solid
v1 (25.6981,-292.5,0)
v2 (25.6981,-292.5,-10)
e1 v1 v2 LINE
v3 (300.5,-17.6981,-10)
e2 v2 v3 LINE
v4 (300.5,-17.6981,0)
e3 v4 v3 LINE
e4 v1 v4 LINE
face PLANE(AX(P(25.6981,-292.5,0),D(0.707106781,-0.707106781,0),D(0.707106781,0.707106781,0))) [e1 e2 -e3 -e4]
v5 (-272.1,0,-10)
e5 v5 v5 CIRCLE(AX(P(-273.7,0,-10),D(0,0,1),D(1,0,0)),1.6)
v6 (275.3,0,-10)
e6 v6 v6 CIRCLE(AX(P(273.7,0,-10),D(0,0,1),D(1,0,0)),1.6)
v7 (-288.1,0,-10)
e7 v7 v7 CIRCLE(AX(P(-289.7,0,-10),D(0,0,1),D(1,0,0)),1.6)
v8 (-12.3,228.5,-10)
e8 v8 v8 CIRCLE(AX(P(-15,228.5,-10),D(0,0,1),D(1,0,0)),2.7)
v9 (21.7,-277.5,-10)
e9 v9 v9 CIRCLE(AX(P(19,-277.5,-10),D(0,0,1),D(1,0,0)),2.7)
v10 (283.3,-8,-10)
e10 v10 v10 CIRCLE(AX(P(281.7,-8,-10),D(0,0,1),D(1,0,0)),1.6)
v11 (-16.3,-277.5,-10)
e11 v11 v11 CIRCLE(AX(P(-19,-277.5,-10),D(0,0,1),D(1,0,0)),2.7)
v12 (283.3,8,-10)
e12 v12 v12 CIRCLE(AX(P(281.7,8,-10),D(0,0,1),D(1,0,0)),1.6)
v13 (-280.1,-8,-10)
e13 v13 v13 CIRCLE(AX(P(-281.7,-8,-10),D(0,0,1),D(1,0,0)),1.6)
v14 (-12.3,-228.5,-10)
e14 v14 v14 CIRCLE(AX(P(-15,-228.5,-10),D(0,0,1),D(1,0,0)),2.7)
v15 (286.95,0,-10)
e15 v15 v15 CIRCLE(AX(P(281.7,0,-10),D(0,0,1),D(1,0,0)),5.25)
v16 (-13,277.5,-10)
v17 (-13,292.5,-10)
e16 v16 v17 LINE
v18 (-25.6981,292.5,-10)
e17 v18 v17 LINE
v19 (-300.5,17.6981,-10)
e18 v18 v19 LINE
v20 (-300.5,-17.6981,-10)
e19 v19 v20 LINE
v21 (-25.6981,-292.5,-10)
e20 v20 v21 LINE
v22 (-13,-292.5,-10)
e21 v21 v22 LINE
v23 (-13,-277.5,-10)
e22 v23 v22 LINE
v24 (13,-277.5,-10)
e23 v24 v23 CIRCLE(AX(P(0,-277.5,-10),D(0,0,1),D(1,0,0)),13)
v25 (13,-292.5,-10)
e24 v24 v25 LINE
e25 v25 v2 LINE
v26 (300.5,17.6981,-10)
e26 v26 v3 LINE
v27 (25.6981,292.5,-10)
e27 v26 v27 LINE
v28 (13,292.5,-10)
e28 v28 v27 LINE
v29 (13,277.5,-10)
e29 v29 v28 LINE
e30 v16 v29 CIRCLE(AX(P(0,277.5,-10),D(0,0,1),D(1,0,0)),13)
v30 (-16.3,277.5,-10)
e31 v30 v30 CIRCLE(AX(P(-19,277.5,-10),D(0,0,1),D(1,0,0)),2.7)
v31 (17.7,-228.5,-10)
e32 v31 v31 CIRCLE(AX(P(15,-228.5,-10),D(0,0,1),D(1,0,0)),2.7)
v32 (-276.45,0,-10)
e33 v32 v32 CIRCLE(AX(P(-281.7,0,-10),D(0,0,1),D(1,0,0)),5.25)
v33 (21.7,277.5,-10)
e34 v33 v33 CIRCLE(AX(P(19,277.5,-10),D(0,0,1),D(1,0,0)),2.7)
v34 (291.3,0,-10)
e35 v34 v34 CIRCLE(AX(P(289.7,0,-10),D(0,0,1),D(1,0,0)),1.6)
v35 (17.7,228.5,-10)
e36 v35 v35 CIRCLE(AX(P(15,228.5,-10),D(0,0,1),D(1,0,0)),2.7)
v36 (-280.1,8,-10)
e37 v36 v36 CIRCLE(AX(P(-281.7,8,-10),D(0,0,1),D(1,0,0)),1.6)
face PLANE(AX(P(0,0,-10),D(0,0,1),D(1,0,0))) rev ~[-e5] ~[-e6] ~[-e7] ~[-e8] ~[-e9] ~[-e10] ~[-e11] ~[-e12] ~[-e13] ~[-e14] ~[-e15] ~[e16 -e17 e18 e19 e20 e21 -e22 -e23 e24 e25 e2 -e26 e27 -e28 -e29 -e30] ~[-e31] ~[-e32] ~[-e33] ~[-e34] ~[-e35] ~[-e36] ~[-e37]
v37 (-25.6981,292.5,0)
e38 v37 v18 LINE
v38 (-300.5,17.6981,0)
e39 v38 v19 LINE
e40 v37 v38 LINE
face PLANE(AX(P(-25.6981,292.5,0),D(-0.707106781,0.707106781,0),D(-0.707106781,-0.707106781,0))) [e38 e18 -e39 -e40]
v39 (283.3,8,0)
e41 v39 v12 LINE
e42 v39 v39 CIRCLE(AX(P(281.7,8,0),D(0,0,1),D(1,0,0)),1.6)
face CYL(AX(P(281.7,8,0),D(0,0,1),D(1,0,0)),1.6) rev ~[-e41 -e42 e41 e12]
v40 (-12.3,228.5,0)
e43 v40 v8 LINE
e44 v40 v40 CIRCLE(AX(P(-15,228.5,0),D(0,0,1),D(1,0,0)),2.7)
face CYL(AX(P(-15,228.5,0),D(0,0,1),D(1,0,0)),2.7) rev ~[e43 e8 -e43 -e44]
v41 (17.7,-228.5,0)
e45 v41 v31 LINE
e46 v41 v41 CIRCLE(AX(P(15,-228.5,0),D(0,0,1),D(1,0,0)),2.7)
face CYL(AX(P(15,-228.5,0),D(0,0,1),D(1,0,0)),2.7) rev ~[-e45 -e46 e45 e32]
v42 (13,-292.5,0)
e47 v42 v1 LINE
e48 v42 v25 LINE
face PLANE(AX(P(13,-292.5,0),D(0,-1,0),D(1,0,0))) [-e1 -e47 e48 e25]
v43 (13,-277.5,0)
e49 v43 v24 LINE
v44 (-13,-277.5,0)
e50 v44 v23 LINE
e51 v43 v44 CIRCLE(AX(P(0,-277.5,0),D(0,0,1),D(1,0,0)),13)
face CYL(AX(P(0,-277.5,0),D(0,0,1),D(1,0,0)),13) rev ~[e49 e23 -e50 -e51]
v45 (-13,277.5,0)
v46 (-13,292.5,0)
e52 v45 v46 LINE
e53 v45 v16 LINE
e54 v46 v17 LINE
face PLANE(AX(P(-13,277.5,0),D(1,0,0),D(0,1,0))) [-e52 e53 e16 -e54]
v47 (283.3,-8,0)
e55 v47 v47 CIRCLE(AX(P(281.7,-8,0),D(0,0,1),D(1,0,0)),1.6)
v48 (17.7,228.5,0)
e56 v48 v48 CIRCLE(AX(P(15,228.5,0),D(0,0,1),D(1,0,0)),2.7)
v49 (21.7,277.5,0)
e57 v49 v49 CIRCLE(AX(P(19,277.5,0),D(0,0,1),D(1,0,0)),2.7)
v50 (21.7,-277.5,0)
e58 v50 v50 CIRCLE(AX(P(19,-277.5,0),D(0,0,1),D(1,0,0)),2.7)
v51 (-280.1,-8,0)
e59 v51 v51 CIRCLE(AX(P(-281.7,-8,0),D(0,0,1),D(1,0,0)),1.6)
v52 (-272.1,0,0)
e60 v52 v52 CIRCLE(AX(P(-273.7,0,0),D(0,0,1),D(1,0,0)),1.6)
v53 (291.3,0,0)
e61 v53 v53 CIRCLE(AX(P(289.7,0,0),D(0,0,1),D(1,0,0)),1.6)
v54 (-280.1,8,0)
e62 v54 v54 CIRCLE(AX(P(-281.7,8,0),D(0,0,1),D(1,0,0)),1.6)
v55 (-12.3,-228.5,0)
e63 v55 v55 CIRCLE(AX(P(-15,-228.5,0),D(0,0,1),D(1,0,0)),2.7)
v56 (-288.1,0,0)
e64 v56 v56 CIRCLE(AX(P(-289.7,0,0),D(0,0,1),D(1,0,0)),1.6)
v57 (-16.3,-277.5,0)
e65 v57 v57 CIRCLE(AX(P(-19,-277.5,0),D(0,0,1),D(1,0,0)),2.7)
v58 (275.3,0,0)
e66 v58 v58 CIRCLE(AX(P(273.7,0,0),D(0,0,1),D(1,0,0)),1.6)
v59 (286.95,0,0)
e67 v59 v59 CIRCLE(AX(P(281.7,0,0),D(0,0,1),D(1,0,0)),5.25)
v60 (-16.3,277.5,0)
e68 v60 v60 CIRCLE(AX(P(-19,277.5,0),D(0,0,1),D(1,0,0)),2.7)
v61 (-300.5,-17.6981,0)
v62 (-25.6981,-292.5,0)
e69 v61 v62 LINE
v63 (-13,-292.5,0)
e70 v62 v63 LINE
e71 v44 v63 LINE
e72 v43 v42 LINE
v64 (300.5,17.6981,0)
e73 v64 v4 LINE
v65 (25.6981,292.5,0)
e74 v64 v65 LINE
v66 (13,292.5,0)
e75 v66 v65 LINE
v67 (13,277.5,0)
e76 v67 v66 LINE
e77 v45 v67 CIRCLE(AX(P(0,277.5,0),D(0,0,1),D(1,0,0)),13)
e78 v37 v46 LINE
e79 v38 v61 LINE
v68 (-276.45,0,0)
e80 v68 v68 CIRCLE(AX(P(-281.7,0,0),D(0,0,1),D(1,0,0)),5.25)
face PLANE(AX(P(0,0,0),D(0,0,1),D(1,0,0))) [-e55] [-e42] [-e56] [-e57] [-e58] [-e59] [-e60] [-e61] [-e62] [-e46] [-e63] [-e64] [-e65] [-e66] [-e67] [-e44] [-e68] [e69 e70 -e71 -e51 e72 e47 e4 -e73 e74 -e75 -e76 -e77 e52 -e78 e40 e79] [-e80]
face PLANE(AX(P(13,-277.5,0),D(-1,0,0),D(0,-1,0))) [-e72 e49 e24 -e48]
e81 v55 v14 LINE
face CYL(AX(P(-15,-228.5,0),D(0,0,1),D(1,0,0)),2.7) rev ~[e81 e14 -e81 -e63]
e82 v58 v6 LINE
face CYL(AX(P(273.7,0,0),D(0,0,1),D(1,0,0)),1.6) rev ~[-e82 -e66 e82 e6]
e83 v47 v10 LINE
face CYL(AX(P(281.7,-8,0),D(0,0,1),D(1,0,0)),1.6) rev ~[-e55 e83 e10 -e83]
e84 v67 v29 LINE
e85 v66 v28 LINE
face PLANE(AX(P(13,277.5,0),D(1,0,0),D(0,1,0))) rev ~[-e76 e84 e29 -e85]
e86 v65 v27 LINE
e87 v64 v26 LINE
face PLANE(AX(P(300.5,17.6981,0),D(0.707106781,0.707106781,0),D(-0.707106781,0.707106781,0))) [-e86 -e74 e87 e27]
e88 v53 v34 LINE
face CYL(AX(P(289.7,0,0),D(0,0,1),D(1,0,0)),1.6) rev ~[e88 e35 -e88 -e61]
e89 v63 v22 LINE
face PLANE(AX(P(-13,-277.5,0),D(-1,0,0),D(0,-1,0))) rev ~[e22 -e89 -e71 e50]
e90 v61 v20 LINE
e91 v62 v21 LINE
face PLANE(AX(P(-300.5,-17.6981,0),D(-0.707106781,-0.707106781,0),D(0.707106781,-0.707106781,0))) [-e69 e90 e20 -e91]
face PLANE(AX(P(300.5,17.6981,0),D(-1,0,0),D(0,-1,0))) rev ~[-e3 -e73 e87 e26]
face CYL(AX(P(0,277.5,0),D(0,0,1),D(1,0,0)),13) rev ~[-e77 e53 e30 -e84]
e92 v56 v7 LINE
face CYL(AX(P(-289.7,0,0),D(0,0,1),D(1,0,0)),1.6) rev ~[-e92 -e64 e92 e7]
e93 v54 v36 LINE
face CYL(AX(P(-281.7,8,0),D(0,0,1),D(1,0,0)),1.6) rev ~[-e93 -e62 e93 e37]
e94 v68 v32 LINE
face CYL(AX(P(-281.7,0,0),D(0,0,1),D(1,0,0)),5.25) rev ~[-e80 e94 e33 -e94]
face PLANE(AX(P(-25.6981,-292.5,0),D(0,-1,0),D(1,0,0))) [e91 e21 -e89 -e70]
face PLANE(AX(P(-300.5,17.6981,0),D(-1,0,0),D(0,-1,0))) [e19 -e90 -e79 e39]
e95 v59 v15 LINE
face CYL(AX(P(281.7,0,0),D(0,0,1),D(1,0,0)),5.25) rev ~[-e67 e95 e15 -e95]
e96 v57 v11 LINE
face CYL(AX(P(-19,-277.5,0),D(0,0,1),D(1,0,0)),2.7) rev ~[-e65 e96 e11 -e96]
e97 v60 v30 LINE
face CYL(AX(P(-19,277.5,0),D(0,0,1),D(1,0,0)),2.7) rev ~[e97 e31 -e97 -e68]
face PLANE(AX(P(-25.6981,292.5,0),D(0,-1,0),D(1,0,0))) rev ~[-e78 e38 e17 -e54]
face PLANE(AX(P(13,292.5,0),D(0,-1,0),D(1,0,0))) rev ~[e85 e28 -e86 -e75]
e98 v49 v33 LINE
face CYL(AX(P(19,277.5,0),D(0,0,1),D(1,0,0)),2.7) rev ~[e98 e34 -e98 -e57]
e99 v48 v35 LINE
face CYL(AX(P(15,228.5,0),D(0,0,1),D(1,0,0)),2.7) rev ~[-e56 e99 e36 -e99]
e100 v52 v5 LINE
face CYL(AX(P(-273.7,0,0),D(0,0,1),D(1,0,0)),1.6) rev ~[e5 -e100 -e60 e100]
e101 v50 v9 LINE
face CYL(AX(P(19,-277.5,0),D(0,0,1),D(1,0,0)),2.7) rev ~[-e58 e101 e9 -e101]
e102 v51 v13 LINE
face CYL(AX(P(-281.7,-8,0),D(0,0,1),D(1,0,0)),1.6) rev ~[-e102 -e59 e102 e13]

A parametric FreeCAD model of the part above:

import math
import FreeCAD as App
import Part
import Sketcher

V = App.Vector

doc = App.newDocument("Part")
params = doc.addObject("Spreadsheet::Sheet", "Params")
for row, (alias, value) in enumerate([
    ("sketch1_radius", "13 mm"),
    ("sketch1_diameter", "5.4 mm"),
    ("sketch1_diameter2", "3.2 mm"),
    ("sketch1_diameter3", "10.5 mm"),
    ("sketch1_height", "15 mm"),
    ("pad1_length", "10 mm"),
], start=1):
    params.set(f"A{row}", alias)
    params.set(f"B{row}", "=" + value)
    params.setAlias(f"B{row}", alias)

body = doc.addObject("PartDesign::Body", "Body")

# Sketch on XY plane
sketch1 = doc.addObject("Sketcher::SketchObject", "Sketch")
body.addObject(sketch1)
sketch1.AttachmentSupport = (doc.XY_Plane, [""])
sketch1.MapMode = "FlatFace"
sketch1.addGeometry([
    Part.LineSegment(V(13, 292.5, 0), V(13, 277.5, 0)),  # 0
    Part.ArcOfCircle(Part.Circle(V(0, 277.5, 0), V(0, 0, 1), 13), math.radians(180), math.radians(360)),  # 1
    Part.LineSegment(V(-13, 277.5, 0), V(-13, 292.5, 0)),  # 2
    Part.LineSegment(V(-13, 292.5, 0), V(-25.7, 292.5, 0)),  # 3
    Part.LineSegment(V(-25.7, 292.5, 0), V(-300.5, 17.7, 0)),  # 4
    Part.LineSegment(V(-300.5, 17.7, 0), V(-300.5, -17.7, 0)),  # 5
    Part.LineSegment(V(-300.5, -17.7, 0), V(-25.7, -292.5, 0)),  # 6
    Part.LineSegment(V(-25.7, -292.5, 0), V(-13, -292.5, 0)),  # 7
    Part.LineSegment(V(-13, -292.5, 0), V(-13, -277.5, 0)),  # 8
    Part.ArcOfCircle(Part.Circle(V(0, -277.5, 0), V(0, 0, 1), 13), math.radians(0), math.radians(180)),  # 9
    Part.LineSegment(V(13, -277.5, 0), V(13, -292.5, 0)),  # 10
    Part.LineSegment(V(13, -292.5, 0), V(25.7, -292.5, 0)),  # 11
    Part.LineSegment(V(25.7, -292.5, 0), V(300.5, -17.7, 0)),  # 12
    Part.LineSegment(V(300.5, -17.7, 0), V(300.5, 17.7, 0)),  # 13
    Part.LineSegment(V(300.5, 17.7, 0), V(25.7, 292.5, 0)),  # 14
    Part.LineSegment(V(25.7, 292.5, 0), V(13, 292.5, 0)),  # 15
    Part.Circle(V(-19, -277.5, 0), V(0, 0, 1), 2.7),  # 16
    Part.Circle(V(-15, -228.5, 0), V(0, 0, 1), 2.7),  # 17
    Part.Circle(V(-281.7, -8, 0), V(0, 0, 1), 1.6),  # 18
    Part.Circle(V(19, -277.5, 0), V(0, 0, 1), 2.7),  # 19
    Part.Circle(V(15, -228.5, 0), V(0, 0, 1), 2.7),  # 20
    Part.Circle(V(281.7, -8, 0), V(0, 0, 1), 1.6),  # 21
    Part.Circle(V(-289.7, 0, 0), V(0, 0, 1), 1.6),  # 22
    Part.Circle(V(-281.7, 0, 0), V(0, 0, 1), 5.2),  # 23
    Part.Circle(V(-281.7, 8, 0), V(0, 0, 1), 1.6),  # 24
    Part.Circle(V(-273.7, 0, 0), V(0, 0, 1), 1.6),  # 25
    Part.Circle(V(-15, 228.5, 0), V(0, 0, 1), 2.7),  # 26
    Part.Circle(V(-19, 277.5, 0), V(0, 0, 1), 2.7),  # 27
    Part.Circle(V(273.7, 0, 0), V(0, 0, 1), 1.6),  # 28
    Part.Circle(V(281.7, 0, 0), V(0, 0, 1), 5.2),  # 29
    Part.Circle(V(281.7, 8, 0), V(0, 0, 1), 1.6),  # 30
    Part.Circle(V(289.7, 0, 0), V(0, 0, 1), 1.6),  # 31
    Part.Circle(V(15, 228.5, 0), V(0, 0, 1), 2.7),  # 32
    Part.Circle(V(19, 277.5, 0), V(0, 0, 1), 2.7),  # 33
], False)
sketch1.addConstraint([
    Sketcher.Constraint("Tangent", 0, 2, 1, 2),
    Sketcher.Constraint("Tangent", 1, 1, 2, 1),
    Sketcher.Constraint("Coincident", 2, 2, 3, 1),
    Sketcher.Constraint("Coincident", 3, 2, 4, 1),
    Sketcher.Constraint("Coincident", 4, 2, 5, 1),
    Sketcher.Constraint("Coincident", 5, 2, 6, 1),
    Sketcher.Constraint("Coincident", 6, 2, 7, 1),
    Sketcher.Constraint("Coincident", 7, 2, 8, 1),
    Sketcher.Constraint("Tangent", 8, 2, 9, 2),
    Sketcher.Constraint("Tangent", 9, 1, 10, 1),
    Sketcher.Constraint("Coincident", 10, 2, 11, 1),
    Sketcher.Constraint("Coincident", 11, 2, 12, 1),
    Sketcher.Constraint("Coincident", 12, 2, 13, 1),
    Sketcher.Constraint("Coincident", 13, 2, 14, 1),
    Sketcher.Constraint("Coincident", 14, 2, 15, 1),
    Sketcher.Constraint("Coincident", 15, 2, 0, 1),
    Sketcher.Constraint("Vertical", 0),
    Sketcher.Constraint("Vertical", 2),
    Sketcher.Constraint("Horizontal", 3),
    Sketcher.Constraint("Vertical", 5),
    Sketcher.Constraint("Horizontal", 7),
    Sketcher.Constraint("Vertical", 8),
    Sketcher.Constraint("Vertical", 10),
    Sketcher.Constraint("Horizontal", 11),
    Sketcher.Constraint("Vertical", 13),
    Sketcher.Constraint("Horizontal", 15),
    Sketcher.Constraint("Equal", 1, 9),
    Sketcher.Constraint("Equal", 16, 17),
    Sketcher.Constraint("Equal", 17, 19),
    Sketcher.Constraint("Equal", 19, 20),
    Sketcher.Constraint("Equal", 18, 21),
    Sketcher.Constraint("Equal", 21, 22),
    Sketcher.Constraint("Equal", 22, 24),
    Sketcher.Constraint("Equal", 24, 25),
    Sketcher.Constraint("Equal", 20, 26),
    Sketcher.Constraint("Equal", 26, 27),
    Sketcher.Constraint("Equal", 25, 28),
    Sketcher.Constraint("Equal", 23, 29),
    Sketcher.Constraint("Equal", 28, 30),
    Sketcher.Constraint("Equal", 30, 31),
    Sketcher.Constraint("Equal", 27, 32),
    Sketcher.Constraint("Equal", 32, 33),
    Sketcher.Constraint("Symmetric", 1, 3, 9, 3, -1, 1),
    Sketcher.Constraint("Symmetric", 21, 3, 24, 3, -1, 1),
    Sketcher.Constraint("Symmetric", 20, 3, 26, 3, -1, 1),
    Sketcher.Constraint("Symmetric", 19, 3, 27, 3, -1, 1),
    Sketcher.Constraint("Symmetric", 25, 3, 28, 3, -1, 1),
    Sketcher.Constraint("Symmetric", 23, 3, 29, 3, -1, 1),
    Sketcher.Constraint("Symmetric", 18, 3, 30, 3, -1, 1),
    Sketcher.Constraint("Symmetric", 22, 3, 31, 3, -1, 1),
    Sketcher.Constraint("Symmetric", 17, 3, 32, 3, -1, 1),
    Sketcher.Constraint("Symmetric", 16, 3, 33, 3, -1, 1),
    Sketcher.Constraint("Symmetric", 3, 2, 11, 2, -1, 1),
    Sketcher.Constraint("Symmetric", 4, 2, 12, 2, -1, 1),
    Sketcher.Constraint("Symmetric", 6, 2, 14, 2, -1, 1),
    Sketcher.Constraint("Symmetric", 16, 3, 19, 3, -2),
    Sketcher.Constraint("Symmetric", 17, 3, 20, 3, -2),
    Sketcher.Constraint("Symmetric", 18, 3, 21, 3, -2),
    Sketcher.Constraint("Symmetric", 7, 2, 10, 2, -2),
    Sketcher.Constraint("PointOnObject", 22, 3, -1),
    Sketcher.Constraint("PointOnObject", 23, 3, -1),
    Sketcher.Constraint("PointOnObject", 25, 3, -1),
    Sketcher.Constraint("Perpendicular", 4, 6),
    Sketcher.Constraint("Perpendicular", 12, 14),
    Sketcher.Constraint("Horizontal", 9, 3, 16, 3),
    Sketcher.Constraint("Horizontal", 5, 2, 12, 2),
    Sketcher.Constraint("Vertical", 18, 3, 23, 3),
    Sketcher.Constraint("Vertical", 3, 2, 6, 2),
    Sketcher.Constraint("Radius", 1, 13.0),
    Sketcher.Constraint("Diameter", 16, 5.4),
    Sketcher.Constraint("Diameter", 18, 3.2),
    Sketcher.Constraint("Diameter", 23, 10.5),
    Sketcher.Constraint("DistanceY", 0, 2, 0, 1, 15.0),
    Sketcher.Constraint("DistanceX", 17, 3, -1, 1, 15.0),
    Sketcher.Constraint("DistanceY", 18, 3, -1, 1, 8.0),
    Sketcher.Constraint("DistanceX", 22, 3, 18, 3, 8.0),
    Sketcher.Constraint("DistanceX", 23, 3, 25, 3, 8.0),
    Sketcher.Constraint("DistanceX", 0, 2, 33, 3, 6.0),
    Sketcher.Constraint("DistanceY", -1, 1, 1, 3, 277.5),
    Sketcher.Constraint("DistanceX", 18, 3, -1, 1, 281.7),
    Sketcher.Constraint("DistanceX", 4, 2, 24, 3, 18.8),
    Sketcher.Constraint("DistanceY", 16, 3, 17, 3, 49.0),
    Sketcher.Constraint("DistanceX", 3, 2, 3, 1, 12.698),
])
sketch1.setExpression("Constraints[68]", "Params.sketch1_radius")
sketch1.setExpression("Constraints[69]", "Params.sketch1_diameter")
sketch1.setExpression("Constraints[70]", "Params.sketch1_diameter2")
sketch1.setExpression("Constraints[71]", "Params.sketch1_diameter3")
sketch1.setExpression("Constraints[72]", "Params.sketch1_height")
pad1 = doc.addObject("PartDesign::Pad", "Pad")
body.addObject(pad1)
pad1.Profile = sketch1
pad1.setExpression("Length", "Params.pad1_length")
pad1.Reversed = True

doc.recompute()
